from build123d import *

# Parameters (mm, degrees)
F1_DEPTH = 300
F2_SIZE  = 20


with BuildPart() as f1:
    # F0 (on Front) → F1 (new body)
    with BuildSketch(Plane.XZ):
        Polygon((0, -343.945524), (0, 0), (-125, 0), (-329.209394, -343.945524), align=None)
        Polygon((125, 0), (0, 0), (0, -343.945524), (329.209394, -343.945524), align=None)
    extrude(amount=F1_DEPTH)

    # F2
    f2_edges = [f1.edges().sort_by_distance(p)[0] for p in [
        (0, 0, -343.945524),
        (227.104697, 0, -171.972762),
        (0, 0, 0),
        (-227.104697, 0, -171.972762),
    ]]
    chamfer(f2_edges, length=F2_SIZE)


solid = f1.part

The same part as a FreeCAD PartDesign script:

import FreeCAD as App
import Part
import Sketcher


def edges_at(feature, points):
    """Names of the edges that pass closest to the given points."""
    edges = feature.Shape.Edges
    near = lambda p: min(range(len(edges)), key=lambda i: edges[i].distToShape(Part.Vertex(*p))[0])
    return sorted({f"Edge{near(p) + 1}" for p in points})

doc = App.newDocument("Part")
body = doc.addObject("PartDesign::Body", "Body")

# Sketch on XZ plane
sketch1 = body.newObject("Sketcher::SketchObject", "Sketch")
sketch1.AttachmentSupport = (doc.getObject("XZ_Plane"), [""])
sketch1.MapMode = "FlatFace"
sketch1.addGeometry(Part.LineSegment(App.Vector(-125, 0, 0), App.Vector(-329.209394, -343.945524, 0)), False)
sketch1.addGeometry(Part.LineSegment(App.Vector(-329.209394, -343.945524, 0), App.Vector(329.209394, -343.945524, 0)), False)
sketch1.addGeometry(Part.LineSegment(App.Vector(329.209394, -343.945524, 0), App.Vector(125, 0, 0)), False)
sketch1.addGeometry(Part.LineSegment(App.Vector(125, 0, 0), App.Vector(-125, 0, 0)), False)
sketch1.addConstraint(Sketcher.Constraint("Coincident", 0, 2, 1, 1))
sketch1.addConstraint(Sketcher.Constraint("Coincident", 1, 2, 2, 1))
sketch1.addConstraint(Sketcher.Constraint("Coincident", 2, 2, 3, 1))
sketch1.addConstraint(Sketcher.Constraint("Coincident", 3, 2, 0, 1))
sketch1.addConstraint(Sketcher.Constraint("Horizontal", 1))
sketch1.addConstraint(Sketcher.Constraint("Horizontal", 3))
sketch1.addConstraint(Sketcher.Constraint("Symmetric", 2, 2, 3, 2, -1, 1))
sketch1.addConstraint(Sketcher.Constraint("Equal", 0, 2))
sketch1.addConstraint(Sketcher.Constraint("DistanceX", 3, 2, 3, 1, 250.0))
sketch1.addConstraint(Sketcher.Constraint("Distance", 0, 400.0))
sketch1.addConstraint(Sketcher.Constraint("DistanceX", 1, 1, 1, 2, 658.418788))
pad1 = body.newObject("PartDesign::Pad", "Pad")
pad1.Profile = sketch1
pad1.Length = 300
doc.recompute()

chamfer = body.newObject("PartDesign::Chamfer", "Chamfer")
chamfer.Base = (pad1, edges_at(pad1, [
    (0, 0, -343.946),
    (227.105, 0, -171.973),
    (0, 0, 0),
    (-227.105, 0, -171.973),
]))
chamfer.Size = 20

doc.recompute()
